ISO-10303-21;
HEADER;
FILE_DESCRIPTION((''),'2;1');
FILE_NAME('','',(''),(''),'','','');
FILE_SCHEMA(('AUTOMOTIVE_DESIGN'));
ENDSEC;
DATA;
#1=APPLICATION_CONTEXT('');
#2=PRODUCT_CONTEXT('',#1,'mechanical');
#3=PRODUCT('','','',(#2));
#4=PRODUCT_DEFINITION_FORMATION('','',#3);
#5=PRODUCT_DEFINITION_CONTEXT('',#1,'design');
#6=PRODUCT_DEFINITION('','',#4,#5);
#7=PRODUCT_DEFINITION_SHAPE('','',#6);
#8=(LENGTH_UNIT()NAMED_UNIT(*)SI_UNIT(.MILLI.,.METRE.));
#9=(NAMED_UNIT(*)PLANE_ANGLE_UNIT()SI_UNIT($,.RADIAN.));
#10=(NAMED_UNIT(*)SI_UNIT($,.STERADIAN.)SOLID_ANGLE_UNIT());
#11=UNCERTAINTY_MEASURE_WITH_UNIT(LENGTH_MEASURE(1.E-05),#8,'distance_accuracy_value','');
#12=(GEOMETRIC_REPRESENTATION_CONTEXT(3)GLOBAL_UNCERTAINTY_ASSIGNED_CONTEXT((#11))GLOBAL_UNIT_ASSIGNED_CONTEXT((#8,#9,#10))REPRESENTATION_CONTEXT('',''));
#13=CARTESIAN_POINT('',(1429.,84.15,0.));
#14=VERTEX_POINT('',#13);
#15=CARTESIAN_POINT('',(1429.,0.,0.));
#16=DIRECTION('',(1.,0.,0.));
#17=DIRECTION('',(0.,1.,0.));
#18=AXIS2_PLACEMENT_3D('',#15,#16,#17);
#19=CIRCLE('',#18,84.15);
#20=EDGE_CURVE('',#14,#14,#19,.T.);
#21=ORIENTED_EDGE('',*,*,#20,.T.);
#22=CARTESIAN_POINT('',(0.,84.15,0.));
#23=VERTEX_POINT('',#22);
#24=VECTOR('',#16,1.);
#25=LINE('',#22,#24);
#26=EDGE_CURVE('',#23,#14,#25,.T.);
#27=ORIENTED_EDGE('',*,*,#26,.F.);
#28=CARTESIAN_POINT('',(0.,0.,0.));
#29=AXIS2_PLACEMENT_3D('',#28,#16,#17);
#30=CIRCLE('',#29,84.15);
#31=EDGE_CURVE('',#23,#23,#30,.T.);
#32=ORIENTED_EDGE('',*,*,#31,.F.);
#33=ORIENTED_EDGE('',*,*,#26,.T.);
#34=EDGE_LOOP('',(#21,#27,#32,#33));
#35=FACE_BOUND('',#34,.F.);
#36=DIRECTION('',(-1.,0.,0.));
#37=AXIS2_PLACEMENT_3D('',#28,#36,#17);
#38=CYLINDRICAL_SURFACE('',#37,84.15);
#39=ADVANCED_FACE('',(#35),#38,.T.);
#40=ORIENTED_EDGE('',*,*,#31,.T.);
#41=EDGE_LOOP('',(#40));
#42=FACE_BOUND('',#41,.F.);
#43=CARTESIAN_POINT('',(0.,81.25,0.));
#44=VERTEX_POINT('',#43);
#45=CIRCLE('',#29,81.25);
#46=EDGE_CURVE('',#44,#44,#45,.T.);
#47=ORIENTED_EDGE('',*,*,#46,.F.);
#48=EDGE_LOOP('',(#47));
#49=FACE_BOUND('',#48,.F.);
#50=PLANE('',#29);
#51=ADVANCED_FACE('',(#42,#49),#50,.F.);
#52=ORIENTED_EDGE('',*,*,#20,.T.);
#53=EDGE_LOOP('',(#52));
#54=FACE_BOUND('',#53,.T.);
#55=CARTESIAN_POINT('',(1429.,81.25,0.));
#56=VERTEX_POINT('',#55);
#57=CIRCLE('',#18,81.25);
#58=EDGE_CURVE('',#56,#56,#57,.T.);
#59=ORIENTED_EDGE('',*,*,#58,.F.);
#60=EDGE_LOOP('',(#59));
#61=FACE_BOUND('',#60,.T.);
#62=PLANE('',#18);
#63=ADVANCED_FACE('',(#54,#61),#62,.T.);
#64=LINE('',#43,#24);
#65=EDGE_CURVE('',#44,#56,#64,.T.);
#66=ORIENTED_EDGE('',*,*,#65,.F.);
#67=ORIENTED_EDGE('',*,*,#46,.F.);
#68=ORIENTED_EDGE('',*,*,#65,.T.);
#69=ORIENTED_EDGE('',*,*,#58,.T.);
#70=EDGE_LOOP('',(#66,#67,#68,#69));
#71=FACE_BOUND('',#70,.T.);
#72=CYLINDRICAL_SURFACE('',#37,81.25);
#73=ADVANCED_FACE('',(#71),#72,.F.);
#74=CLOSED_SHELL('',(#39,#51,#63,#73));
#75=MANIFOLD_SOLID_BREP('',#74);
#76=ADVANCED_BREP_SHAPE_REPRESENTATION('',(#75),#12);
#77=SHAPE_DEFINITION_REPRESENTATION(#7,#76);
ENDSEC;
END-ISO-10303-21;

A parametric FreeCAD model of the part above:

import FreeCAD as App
import Part
import Sketcher
Q = App.Units.Quantity

doc = App.newDocument("Part")
body = doc.addObject("PartDesign::Body", "Body")

sketch1 = body.newObject("Sketcher::SketchObject", "Sketch")
sketch1.AttachmentSupport = (doc.getObject("YZ_Plane"), [""])
sketch1.MapMode = "FlatFace"
sketch1.addGeometry(Part.Circle(App.Vector(0, 0, 0), App.Vector(0, 0, 1), 84.15), False)
sketch1.addGeometry(Part.Circle(App.Vector(0, 0, 0), App.Vector(0, 0, 1), 81.25), False)
sketch1.addConstraint(Sketcher.Constraint("Coincident", 0, 3, -1, 1))
sketch1.addConstraint(Sketcher.Constraint("Coincident", 1, 3, -1, 1))
sketch1.addConstraint(Sketcher.Constraint("Diameter", 0, Q("168.3 mm")))
sketch1.addConstraint(Sketcher.Constraint("Diameter", 1, Q("162.5 mm")))
pad1 = body.newObject("PartDesign::Pad", "Pad")
pad1.Profile = sketch1
pad1.Length = 1429

doc.recompute()
